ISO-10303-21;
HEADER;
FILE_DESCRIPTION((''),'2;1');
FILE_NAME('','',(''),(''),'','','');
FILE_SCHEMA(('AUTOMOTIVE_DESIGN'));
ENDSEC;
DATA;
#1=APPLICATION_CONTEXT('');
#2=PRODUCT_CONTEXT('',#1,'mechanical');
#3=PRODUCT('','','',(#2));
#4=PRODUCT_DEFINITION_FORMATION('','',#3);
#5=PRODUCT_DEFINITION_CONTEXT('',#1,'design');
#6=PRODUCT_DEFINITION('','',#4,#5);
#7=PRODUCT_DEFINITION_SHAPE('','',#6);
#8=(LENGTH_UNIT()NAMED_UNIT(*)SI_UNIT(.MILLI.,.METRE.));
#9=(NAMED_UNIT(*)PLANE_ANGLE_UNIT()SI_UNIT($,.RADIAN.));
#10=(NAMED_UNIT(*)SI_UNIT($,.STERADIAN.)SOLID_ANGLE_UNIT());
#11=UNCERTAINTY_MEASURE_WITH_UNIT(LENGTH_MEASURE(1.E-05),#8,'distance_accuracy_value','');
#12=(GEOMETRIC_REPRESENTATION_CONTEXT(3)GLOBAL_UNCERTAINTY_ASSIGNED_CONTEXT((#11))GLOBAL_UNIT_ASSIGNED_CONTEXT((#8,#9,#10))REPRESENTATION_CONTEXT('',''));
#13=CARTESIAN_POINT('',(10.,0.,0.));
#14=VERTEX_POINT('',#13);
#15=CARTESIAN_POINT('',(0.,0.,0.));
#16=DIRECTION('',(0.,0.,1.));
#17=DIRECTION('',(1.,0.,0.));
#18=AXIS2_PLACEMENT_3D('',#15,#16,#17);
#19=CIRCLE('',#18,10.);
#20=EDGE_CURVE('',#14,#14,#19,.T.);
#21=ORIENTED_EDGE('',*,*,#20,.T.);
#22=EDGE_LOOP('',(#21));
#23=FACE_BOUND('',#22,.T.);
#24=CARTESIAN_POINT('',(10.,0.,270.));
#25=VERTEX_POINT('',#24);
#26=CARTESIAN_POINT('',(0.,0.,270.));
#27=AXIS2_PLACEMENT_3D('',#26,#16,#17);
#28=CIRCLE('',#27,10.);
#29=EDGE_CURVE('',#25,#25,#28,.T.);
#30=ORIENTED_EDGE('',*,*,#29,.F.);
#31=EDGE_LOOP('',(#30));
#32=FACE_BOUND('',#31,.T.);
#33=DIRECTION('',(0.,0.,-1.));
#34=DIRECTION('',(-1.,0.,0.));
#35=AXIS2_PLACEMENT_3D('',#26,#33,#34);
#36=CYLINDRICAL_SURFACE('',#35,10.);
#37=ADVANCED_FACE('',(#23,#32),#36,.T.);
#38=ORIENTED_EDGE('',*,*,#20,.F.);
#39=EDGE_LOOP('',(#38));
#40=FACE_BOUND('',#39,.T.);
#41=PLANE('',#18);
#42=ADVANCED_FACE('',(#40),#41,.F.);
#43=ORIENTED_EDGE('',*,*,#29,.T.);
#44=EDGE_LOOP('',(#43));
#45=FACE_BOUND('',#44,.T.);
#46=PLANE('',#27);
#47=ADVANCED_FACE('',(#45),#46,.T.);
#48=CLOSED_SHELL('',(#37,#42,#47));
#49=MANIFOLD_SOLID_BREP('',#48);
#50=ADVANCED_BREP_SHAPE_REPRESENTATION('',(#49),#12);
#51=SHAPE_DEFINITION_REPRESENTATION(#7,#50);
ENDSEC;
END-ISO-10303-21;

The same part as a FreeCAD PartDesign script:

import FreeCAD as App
import Part
import Sketcher
from FreeCAD import Vector

doc = App.newDocument("Part")
body = doc.addObject("PartDesign::Body", "Body")

# Sketch on XY plane
sketch1 = body.newObject("Sketcher::SketchObject", "Sketch")
sketch1.AttachmentSupport = (doc.getObject("XY_Plane"), [""])
sketch1.MapMode = "FlatFace"
sketch1.addGeometry(Part.Circle(Vector(0, 0, 0), Vector(0, 0, 1), 10), False)
sketch1.addConstraint([
    Sketcher.Constraint("Coincident", 0, 3, -1, 1),
    Sketcher.Constraint("Diameter", 0, 20.0),
])
pad1 = body.newObject("PartDesign::Pad", "Pad")
pad1.Profile = sketch1
pad1.Length = 270

doc.recompute()
